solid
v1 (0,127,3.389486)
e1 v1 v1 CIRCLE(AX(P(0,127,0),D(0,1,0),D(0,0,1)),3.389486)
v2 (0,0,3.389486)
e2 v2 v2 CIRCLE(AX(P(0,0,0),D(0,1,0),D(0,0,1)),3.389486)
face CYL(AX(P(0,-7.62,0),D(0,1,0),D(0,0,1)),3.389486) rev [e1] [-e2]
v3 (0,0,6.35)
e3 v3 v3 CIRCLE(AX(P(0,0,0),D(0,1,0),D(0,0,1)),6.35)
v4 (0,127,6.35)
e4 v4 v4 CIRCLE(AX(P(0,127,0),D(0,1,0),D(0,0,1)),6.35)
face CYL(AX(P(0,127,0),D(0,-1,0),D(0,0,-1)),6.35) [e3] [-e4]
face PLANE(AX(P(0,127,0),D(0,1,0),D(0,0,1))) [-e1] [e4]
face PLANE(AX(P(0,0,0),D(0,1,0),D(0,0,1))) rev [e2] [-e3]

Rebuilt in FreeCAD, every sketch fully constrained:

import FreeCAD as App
import Part
import Sketcher

V = App.Vector
Q = App.Units.Quantity

doc = App.newDocument("Part")
body = doc.addObject("PartDesign::Body", "Body")

# Sketch on XZ plane
sketch1 = body.newObject("Sketcher::SketchObject", "Sketch")
sketch1.AttachmentSupport = (doc.getObject("XZ_Plane"), [""])
sketch1.MapMode = "FlatFace"
sketch1.addGeometry(Part.Circle(V(0, 0, 0), V(0, 0, 1), 6.35), False)
sketch1.addConstraint([
    Sketcher.Constraint("Coincident", 0, 3, -1, 1),
    Sketcher.Constraint("Diameter", 0, Q("0.5 in")),
])
pad1 = body.newObject("PartDesign::Pad", "Pad")
pad1.Profile = sketch1
pad1.Length = Q("5 in")
pad1.Reversed = True

# Sketch on XZ plane
sketch2 = body.newObject("Sketcher::SketchObject", "Sketch001")
sketch2.AttachmentSupport = (doc.getObject("XZ_Plane"), [""])
sketch2.MapMode = "FlatFace"
sketch2.AttachmentOffset = App.Placement(V(0, 0, -5 * 25.4), App.Rotation())
sketch2.addGeometry(Part.Circle(V(0, 0, 0), V(0, 0, 1), 3.389486), False)
sketch2.addConstraint([
    Sketcher.Constraint("Coincident", 0, 3, -1, 1),
    Sketcher.Constraint("Diameter", 0, 6.778972),
])
pocket1 = body.newObject("PartDesign::Pocket", "Pocket")
pocket1.Profile = sketch2
pocket1.Length = Q("5.3 in")
pocket1.Reversed = True

doc.recompute()
